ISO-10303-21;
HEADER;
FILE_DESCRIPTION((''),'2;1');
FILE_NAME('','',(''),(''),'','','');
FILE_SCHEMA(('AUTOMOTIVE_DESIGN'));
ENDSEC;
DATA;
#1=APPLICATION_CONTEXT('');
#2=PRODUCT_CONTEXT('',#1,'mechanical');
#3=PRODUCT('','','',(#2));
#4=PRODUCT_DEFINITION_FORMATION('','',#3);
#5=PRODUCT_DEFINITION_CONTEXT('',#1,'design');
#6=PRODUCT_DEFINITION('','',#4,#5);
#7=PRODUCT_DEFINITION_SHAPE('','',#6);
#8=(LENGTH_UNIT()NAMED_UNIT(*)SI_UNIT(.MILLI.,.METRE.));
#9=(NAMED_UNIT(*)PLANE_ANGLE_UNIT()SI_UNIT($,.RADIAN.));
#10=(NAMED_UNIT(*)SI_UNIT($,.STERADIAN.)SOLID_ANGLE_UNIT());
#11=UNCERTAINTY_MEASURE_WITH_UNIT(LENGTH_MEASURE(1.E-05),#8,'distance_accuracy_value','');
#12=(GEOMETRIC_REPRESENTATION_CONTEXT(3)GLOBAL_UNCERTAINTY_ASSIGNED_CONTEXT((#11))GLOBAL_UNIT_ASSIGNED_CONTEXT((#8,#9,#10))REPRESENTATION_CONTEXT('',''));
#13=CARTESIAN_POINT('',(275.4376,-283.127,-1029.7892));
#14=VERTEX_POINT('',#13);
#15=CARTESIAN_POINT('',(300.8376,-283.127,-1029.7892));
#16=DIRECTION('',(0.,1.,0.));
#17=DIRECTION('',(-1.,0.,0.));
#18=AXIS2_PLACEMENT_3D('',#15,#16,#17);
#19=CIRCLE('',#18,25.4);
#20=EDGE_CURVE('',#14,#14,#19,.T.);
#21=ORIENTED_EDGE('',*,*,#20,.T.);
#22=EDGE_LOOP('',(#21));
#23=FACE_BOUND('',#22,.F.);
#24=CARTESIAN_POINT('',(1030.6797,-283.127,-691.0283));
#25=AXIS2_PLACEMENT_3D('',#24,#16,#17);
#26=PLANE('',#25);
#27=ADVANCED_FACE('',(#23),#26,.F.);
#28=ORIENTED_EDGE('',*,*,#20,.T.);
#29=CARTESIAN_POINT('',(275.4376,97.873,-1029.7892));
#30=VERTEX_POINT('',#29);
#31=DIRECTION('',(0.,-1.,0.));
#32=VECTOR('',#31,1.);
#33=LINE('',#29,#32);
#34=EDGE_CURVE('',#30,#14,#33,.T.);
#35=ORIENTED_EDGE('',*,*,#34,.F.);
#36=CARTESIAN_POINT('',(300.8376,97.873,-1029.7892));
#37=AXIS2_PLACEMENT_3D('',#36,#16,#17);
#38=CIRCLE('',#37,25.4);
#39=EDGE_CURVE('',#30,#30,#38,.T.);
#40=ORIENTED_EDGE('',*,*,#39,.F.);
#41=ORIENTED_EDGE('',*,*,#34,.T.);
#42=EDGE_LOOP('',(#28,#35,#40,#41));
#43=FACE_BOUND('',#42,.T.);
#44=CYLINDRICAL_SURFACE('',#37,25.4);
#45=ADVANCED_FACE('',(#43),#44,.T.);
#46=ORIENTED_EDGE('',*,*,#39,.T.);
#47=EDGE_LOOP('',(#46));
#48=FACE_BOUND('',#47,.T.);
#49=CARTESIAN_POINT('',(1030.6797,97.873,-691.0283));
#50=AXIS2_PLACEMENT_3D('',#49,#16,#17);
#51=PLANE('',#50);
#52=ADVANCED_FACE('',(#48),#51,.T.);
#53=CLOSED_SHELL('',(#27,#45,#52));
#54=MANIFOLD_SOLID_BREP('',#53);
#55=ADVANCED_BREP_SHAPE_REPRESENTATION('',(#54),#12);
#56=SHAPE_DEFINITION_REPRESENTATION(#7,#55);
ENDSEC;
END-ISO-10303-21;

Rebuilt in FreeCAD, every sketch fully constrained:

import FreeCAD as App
import Part
import Sketcher

V = App.Vector
Q = App.Units.Quantity

doc = App.newDocument("Part")
params = doc.addObject("Spreadsheet::Sheet", "Params")
for row, (alias, value) in enumerate([
    ("sketch1_diameter", "2 in"),
    ("pad1_length", "15 in"),
], start=1):
    params.set(f"A{row}", alias)
    params.set(f"B{row}", "=" + value)
    params.setAlias(f"B{row}", alias)

body = doc.addObject("PartDesign::Body", "Body")

sketch1 = body.newObject("Sketcher::SketchObject", "Sketch")
sketch1.AttachmentSupport = (doc.getObject("XZ_Plane"), [""])
sketch1.MapMode = "FlatFace"
sketch1.AttachmentOffset = App.Placement(V(0, 0, -97.873), App.Rotation())
sketch1.addGeometry(Part.Circle(V(301, -1030, 0), V(0, 0, 1), 25), False)
sketch1.addConstraint([
    Sketcher.Constraint("Diameter", 0, Q("2 in")),
    Sketcher.Constraint("DistanceX", -1, 1, 0, 3, Q("11.844 in")),
    Sketcher.Constraint("DistanceY", 0, 3, -1, 1, Q("1029.7892 mm")),
])
sketch1.setExpression("Constraints[0]", "Params.sketch1_diameter")
pad1 = body.newObject("PartDesign::Pad", "Pad")
pad1.Profile = sketch1
pad1.setExpression("Length", "Params.pad1_length")

doc.recompute()
